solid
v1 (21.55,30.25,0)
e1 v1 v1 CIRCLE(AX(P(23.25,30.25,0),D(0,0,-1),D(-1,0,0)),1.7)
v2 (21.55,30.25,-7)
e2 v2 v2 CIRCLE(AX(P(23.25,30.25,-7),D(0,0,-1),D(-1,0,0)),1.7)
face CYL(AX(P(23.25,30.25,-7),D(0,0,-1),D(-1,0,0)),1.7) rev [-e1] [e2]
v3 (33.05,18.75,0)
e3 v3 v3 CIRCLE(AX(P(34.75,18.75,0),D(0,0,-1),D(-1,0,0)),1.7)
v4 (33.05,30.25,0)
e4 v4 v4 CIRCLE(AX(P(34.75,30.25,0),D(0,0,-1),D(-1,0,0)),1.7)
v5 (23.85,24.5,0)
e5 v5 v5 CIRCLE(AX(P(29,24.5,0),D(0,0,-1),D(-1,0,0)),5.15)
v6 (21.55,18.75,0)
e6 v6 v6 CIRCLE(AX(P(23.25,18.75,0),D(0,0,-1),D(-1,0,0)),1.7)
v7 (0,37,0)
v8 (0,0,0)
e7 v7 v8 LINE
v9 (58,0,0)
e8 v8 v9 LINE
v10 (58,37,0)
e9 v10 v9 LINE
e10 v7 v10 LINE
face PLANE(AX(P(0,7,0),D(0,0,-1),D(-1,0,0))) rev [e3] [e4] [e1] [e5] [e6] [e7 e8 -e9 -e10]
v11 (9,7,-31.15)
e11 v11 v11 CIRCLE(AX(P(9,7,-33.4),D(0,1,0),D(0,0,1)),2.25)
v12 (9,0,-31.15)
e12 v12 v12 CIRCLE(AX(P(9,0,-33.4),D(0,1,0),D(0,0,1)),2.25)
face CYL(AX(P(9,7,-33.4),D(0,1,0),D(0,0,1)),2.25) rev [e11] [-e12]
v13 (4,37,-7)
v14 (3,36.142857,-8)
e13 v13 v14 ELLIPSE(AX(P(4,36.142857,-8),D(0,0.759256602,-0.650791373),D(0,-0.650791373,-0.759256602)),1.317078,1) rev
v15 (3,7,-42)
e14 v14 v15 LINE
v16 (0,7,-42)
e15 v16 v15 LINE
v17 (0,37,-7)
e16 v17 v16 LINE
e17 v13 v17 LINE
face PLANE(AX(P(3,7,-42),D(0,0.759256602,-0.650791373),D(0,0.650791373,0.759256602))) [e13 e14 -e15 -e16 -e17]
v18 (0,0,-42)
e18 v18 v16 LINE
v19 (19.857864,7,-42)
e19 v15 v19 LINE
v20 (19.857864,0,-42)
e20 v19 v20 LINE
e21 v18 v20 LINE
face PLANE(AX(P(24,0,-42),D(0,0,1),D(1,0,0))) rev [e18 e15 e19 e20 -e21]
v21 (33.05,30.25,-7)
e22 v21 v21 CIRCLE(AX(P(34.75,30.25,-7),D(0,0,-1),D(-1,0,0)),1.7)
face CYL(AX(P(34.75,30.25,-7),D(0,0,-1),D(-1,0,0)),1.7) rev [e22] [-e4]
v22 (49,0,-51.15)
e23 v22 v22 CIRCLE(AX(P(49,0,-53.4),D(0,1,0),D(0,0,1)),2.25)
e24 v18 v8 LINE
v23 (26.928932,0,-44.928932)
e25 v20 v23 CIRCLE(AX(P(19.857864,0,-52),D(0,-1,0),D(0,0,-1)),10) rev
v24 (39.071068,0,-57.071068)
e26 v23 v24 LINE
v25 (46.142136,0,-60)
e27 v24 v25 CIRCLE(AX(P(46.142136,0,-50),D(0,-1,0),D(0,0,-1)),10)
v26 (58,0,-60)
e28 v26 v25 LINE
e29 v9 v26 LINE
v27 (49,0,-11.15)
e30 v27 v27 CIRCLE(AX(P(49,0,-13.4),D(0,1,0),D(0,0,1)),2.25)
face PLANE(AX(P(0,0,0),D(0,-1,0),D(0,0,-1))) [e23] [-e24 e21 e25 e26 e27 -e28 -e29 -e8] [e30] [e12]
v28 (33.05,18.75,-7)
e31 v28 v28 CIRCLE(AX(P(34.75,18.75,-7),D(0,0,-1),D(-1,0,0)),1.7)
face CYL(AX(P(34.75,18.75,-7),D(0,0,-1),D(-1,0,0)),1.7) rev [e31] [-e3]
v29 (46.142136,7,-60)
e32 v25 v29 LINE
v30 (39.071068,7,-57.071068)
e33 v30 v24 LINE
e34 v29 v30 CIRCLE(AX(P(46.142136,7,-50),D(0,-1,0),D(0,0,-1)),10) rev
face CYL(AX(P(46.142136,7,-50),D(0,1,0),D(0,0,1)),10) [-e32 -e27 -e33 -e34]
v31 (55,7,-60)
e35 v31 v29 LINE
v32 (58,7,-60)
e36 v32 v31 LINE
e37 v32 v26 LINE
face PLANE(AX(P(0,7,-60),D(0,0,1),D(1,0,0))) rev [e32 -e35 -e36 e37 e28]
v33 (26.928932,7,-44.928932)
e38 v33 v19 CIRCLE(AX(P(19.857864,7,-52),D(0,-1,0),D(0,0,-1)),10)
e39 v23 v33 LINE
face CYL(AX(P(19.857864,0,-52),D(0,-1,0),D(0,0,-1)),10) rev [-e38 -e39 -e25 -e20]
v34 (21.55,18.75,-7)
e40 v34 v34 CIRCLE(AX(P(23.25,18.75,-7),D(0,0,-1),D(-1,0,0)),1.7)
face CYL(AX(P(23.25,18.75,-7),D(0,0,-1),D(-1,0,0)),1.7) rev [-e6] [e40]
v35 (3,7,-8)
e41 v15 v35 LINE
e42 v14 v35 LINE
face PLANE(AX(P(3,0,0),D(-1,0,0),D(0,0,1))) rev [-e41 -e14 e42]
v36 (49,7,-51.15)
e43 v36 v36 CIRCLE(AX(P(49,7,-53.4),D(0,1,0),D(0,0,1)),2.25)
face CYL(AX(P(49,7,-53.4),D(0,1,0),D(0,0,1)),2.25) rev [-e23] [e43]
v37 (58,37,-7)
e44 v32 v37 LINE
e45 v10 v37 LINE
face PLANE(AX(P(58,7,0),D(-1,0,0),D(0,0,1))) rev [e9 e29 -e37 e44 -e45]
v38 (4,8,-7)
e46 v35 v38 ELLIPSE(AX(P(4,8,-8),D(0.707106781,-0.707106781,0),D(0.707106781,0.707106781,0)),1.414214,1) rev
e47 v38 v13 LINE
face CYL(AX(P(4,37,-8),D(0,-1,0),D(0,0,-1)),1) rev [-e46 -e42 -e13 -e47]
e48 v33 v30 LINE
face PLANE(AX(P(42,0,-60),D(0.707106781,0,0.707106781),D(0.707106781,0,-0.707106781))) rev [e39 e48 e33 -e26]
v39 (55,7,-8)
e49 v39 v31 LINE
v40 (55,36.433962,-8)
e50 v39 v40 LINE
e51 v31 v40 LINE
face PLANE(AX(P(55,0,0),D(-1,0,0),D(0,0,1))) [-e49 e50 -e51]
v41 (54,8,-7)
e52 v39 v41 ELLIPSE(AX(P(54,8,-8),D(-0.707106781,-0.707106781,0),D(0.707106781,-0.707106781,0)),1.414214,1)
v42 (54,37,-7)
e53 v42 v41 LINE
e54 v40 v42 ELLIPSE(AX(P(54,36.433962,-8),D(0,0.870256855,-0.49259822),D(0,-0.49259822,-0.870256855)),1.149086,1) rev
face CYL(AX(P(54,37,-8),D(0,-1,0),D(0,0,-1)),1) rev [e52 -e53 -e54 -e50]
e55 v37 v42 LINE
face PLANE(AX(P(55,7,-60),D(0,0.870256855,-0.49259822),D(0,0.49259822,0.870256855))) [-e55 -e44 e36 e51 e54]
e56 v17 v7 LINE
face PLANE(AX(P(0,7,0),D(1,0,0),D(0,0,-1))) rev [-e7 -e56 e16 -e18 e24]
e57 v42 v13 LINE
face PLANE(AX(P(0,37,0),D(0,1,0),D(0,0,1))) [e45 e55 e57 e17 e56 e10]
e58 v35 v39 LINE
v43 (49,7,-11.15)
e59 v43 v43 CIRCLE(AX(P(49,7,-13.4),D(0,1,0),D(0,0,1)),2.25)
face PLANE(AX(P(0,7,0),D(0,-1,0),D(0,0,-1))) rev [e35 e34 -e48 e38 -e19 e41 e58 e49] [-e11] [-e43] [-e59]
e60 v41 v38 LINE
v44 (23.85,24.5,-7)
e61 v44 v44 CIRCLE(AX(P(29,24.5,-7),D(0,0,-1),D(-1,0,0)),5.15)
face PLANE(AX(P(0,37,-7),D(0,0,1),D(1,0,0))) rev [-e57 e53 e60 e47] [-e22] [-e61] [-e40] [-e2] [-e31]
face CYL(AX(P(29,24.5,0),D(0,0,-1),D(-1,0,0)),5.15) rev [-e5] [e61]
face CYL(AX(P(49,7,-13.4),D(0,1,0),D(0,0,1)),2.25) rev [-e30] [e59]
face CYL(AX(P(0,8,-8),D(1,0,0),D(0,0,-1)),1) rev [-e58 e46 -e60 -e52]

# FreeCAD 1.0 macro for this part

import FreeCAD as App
import Part
import Sketcher
from FreeCAD import Vector
Q = App.Units.Quantity


def edges_at(feature, points):
    """Names of the edges that pass closest to the given points."""
    edges = feature.Shape.Edges
    near = lambda p: min(range(len(edges)), key=lambda i: edges[i].distToShape(Part.Vertex(*p))[0])
    return sorted({f"Edge{near(p) + 1}" for p in points})


def add_polygon(sketch, points):
    """Adds a closed chain of lines whose ends are joined by coincident constraints."""
    first, n = sketch.GeometryCount, len(points)
    for a, b in zip(points, points[1:] + points[:1]):
        sketch.addGeometry(Part.LineSegment(App.Vector(*a, 0), App.Vector(*b, 0)), False)
    for i in range(n):
        sketch.addConstraint(Sketcher.Constraint("Coincident", first + i, 2, first + (i + 1) % n, 1))

doc = App.newDocument("Part")
body = doc.addObject("PartDesign::Body", "Body")

# Sketch on XZ plane
sketch1 = body.newObject("Sketcher::SketchObject", "Sketch")
sketch1.AttachmentSupport = (doc.getObject("XZ_Plane"), [""])
sketch1.MapMode = "FlatFace"
add_polygon(sketch1, [(0, -60), (0, 0), (58, 0), (58, -60)])  # lines 0-3
sketch1.addConstraint([
    Sketcher.Constraint("Vertical", 0),
    Sketcher.Constraint("Horizontal", 1),
    Sketcher.Constraint("Vertical", 2),
    Sketcher.Constraint("Horizontal", 3),
    Sketcher.Constraint("Coincident", 0, 2, -1, 1),
    Sketcher.Constraint("DistanceX", 1, 1, 1, 2, Q("58 mm")),
    Sketcher.Constraint("DistanceY", 0, 1, 0, 2, Q("60 mm")),
])
pad1 = body.newObject("PartDesign::Pad", "Pad")
pad1.Profile = sketch1
pad1.Length = 7
pad1.Reversed = True

# Sketch on XZ plane
sketch2 = body.newObject("Sketcher::SketchObject", "Sketch001")
sketch2.AttachmentSupport = (doc.getObject("XZ_Plane"), [""])
sketch2.MapMode = "FlatFace"
sketch2.AttachmentOffset = App.Placement(Vector(0, 0, -7), App.Rotation())
add_polygon(sketch2, [(0, -7), (0, 0), (58, 0), (58, -7)])  # lines 0-3
sketch2.addConstraint([
    Sketcher.Constraint("Vertical", 0),
    Sketcher.Constraint("Horizontal", 1),
    Sketcher.Constraint("Vertical", 2),
    Sketcher.Constraint("Horizontal", 3),
    Sketcher.Constraint("Coincident", 0, 2, -1, 1),
    Sketcher.Constraint("DistanceX", 1, 1, 1, 2, Q("58 mm")),
    Sketcher.Constraint("DistanceY", 0, 1, 0, 2, Q("7 mm")),
])
pad2 = body.newObject("PartDesign::Pad", "Pad001")
pad2.Profile = sketch2
pad2.Length = 30
pad2.Reversed = True

# Sketch on XY plane
sketch3 = body.newObject("Sketcher::SketchObject", "Sketch002")
sketch3.AttachmentSupport = (doc.getObject("XY_Plane"), [""])
sketch3.MapMode = "FlatFace"
sketch3.AttachmentOffset = App.Placement(Vector(0, 0, -7), App.Rotation())
sketch3.addGeometry(Part.Circle(Vector(29, 24, 0), Vector(0, 0, 1), 5), False)
sketch3.addConstraint([
    Sketcher.Constraint("Diameter", 0, Q("10.3 mm")),
    Sketcher.Constraint("DistanceX", -1, 1, 0, 3, Q("29 mm")),
    Sketcher.Constraint("DistanceY", -1, 1, 0, 3, Q("24.5 mm")),
])
pocket1 = body.newObject("PartDesign::Pocket", "Pocket")
pocket1.Profile = sketch3
pocket1.Type = "ThroughAll"
pocket1.Reversed = True

# Sketch on XY plane
sketch4 = body.newObject("Sketcher::SketchObject", "Sketch003")
sketch4.AttachmentSupport = (doc.getObject("XY_Plane"), [""])
sketch4.MapMode = "FlatFace"
sketch4.AttachmentOffset = App.Placement(Vector(0, 0, -7), App.Rotation())
sketch4.addGeometry([
    Part.Circle(Vector(34.8, 18.8, 0), Vector(0, 0, 1), 1.7),
    Part.Circle(Vector(23.2, 18.8, 0), Vector(0, 0, 1), 1.7),
    Part.Circle(Vector(23.2, 30.2, 0), Vector(0, 0, 1), 1.7),
    Part.Circle(Vector(34.8, 30.2, 0), Vector(0, 0, 1), 1.7),
], False)
sketch4.addConstraint([
    Sketcher.Constraint("Equal", 0, 1),
    Sketcher.Constraint("Equal", 1, 2),
    Sketcher.Constraint("Equal", 2, 3),
    Sketcher.Constraint("Horizontal", 0, 3, 1, 3),
    Sketcher.Constraint("Horizontal", 2, 3, 3, 3),
    Sketcher.Constraint("Vertical", 1, 3, 2, 3),
    Sketcher.Constraint("Vertical", 0, 3, 3, 3),
    Sketcher.Constraint("Diameter", 0, Q("3.4 mm")),
    Sketcher.Constraint("DistanceX", 1, 3, 0, 3, Q("11.5 mm")),
    Sketcher.Constraint("DistanceY", 1, 3, 2, 3, Q("11.5 mm")),
    Sketcher.Constraint("DistanceX", -1, 1, 0, 3, Q("34.75 mm")),
    Sketcher.Constraint("DistanceY", -1, 1, 0, 3, Q("18.75 mm")),
])
doc.recompute()
hole = body.newObject("PartDesign::Hole", "Hole")
hole.Profile = sketch4
hole.ThreadType = "None"
hole.Diameter = 3.4
hole.DepthType = "ThroughAll"
hole.Reversed = True

# Sketch on YZ plane
sketch5 = body.newObject("Sketcher::SketchObject", "Sketch004")
sketch5.AttachmentSupport = (doc.getObject("YZ_Plane"), [""])
sketch5.MapMode = "FlatFace"
sketch5.AttachmentOffset = App.Placement(Vector(0, 0, 58), App.Rotation())
add_polygon(sketch5, [(7, -60), (37, -7), (7, -7)])  # lines 0-2
sketch5.addConstraint([
    Sketcher.Constraint("Horizontal", 1),
    Sketcher.Constraint("Vertical", 2),
    Sketcher.Constraint("DistanceX", 1, 2, 1, 1, Q("30 mm")),
    Sketcher.Constraint("DistanceY", 2, 2, 2, 1, Q("53 mm")),
    Sketcher.Constraint("DistanceX", -1, 1, 0, 2, Q("37 mm")),
    Sketcher.Constraint("DistanceY", 0, 2, -1, 1, Q("7 mm")),
])
pad3 = body.newObject("PartDesign::Pad", "Pad002")
pad3.Profile = sketch5
pad3.Length = 3
pad3.Reversed = True

# Sketch on XZ plane
sketch6 = body.newObject("Sketcher::SketchObject", "Sketch005")
sketch6.AttachmentSupport = (doc.getObject("XZ_Plane"), [""])
sketch6.MapMode = "FlatFace"
sketch6.AttachmentOffset = App.Placement(Vector(0, 0, -7), App.Rotation())
sketch6.addGeometry([
    Part.Circle(Vector(49, -53.4, 0), Vector(0, 0, 1), 2.2),
    Part.Circle(Vector(49, -13.4, 0), Vector(0, 0, 1), 2.2),
    Part.Circle(Vector(9, -33.4, 0), Vector(0, 0, 1), 2.2),
], False)
sketch6.addConstraint([
    Sketcher.Constraint("Equal", 0, 1),
    Sketcher.Constraint("Equal", 1, 2),
    Sketcher.Constraint("Vertical", 0, 3, 1, 3),
    Sketcher.Constraint("Diameter", 0, Q("4.5 mm")),
    Sketcher.Constraint("DistanceX", -1, 1, 0, 3, Q("49 mm")),
    Sketcher.Constraint("DistanceX", -1, 1, 2, 3, Q("9 mm")),
    Sketcher.Constraint("DistanceY", 0, 3, 1, 3, Q("40 mm")),
    Sketcher.Constraint("DistanceY", 0, 3, 2, 3, Q("20 mm")),
    Sketcher.Constraint("DistanceY", 0, 3, -1, 1, Q("53.4 mm")),
])
doc.recompute()
hole2 = body.newObject("PartDesign::Hole", "Hole001")
hole2.Profile = sketch6
hole2.ThreadType = "None"
hole2.Diameter = 4.5
hole2.DepthType = "ThroughAll"
hole2.Reversed = True

# Sketch on XZ plane
sketch7 = body.newObject("Sketcher::SketchObject", "Sketch006")
sketch7.AttachmentSupport = (doc.getObject("XZ_Plane"), [""])
sketch7.MapMode = "FlatFace"
sketch7.AttachmentOffset = App.Placement(Vector(0, 0, -7), App.Rotation())
add_polygon(sketch7, [(24, -42), (42, -60), (0, -60), (0, -42)])  # lines 0-3
sketch7.addConstraint([
    Sketcher.Constraint("Horizontal", 1),
    Sketcher.Constraint("Vertical", 2),
    Sketcher.Constraint("Horizontal", 3),
    Sketcher.Constraint("PointOnObject", 1, 2, -2),
    Sketcher.Constraint("DistanceX", 1, 2, 1, 1, Q("42 mm")),
    Sketcher.Constraint("DistanceX", 3, 1, 3, 2, Q("24 mm")),
    Sketcher.Constraint("DistanceY", 2, 1, 2, 2, Q("18 mm")),
    Sketcher.Constraint("DistanceY", 0, 2, -1, 1, Q("60 mm")),
])
pocket2 = body.newObject("PartDesign::Pocket", "Pocket001")
pocket2.Profile = sketch7
pocket2.Type = "ThroughAll"
pocket2.Reversed = True

# Sketch on YZ plane
sketch8 = body.newObject("Sketcher::SketchObject", "Sketch007")
sketch8.AttachmentSupport = (doc.getObject("YZ_Plane"), [""])
sketch8.MapMode = "FlatFace"
add_polygon(sketch8, [(37, -7), (7, -42), (7, -7)])  # lines 0-2
sketch8.addConstraint([
    Sketcher.Constraint("Vertical", 1),
    Sketcher.Constraint("Horizontal", 2),
    Sketcher.Constraint("DistanceX", 2, 1, 2, 2, Q("30 mm")),
    Sketcher.Constraint("DistanceY", 1, 1, 1, 2, Q("35 mm")),
    Sketcher.Constraint("DistanceX", -1, 1, 0, 2, Q("7 mm")),
    Sketcher.Constraint("DistanceY", 0, 2, -1, 1, Q("42 mm")),
])
pad4 = body.newObject("PartDesign::Pad", "Pad003")
pad4.Profile = sketch8
pad4.Length = 3
doc.recompute()

fillet = body.newObject("PartDesign::Fillet", "Fillet")
fillet.Base = (pad4, edges_at(pad4, [(42, 3.5, -60), (24, 3.5, -42)]))
fillet.Radius = 10
doc.recompute()

fillet2 = body.newObject("PartDesign::Fillet", "Fillet001")
fillet2.Base = (fillet, edges_at(fillet, [(29, 7, -7), (55, 22, -7), (3, 22, -7)]))
fillet2.Radius = 1

doc.recompute()
